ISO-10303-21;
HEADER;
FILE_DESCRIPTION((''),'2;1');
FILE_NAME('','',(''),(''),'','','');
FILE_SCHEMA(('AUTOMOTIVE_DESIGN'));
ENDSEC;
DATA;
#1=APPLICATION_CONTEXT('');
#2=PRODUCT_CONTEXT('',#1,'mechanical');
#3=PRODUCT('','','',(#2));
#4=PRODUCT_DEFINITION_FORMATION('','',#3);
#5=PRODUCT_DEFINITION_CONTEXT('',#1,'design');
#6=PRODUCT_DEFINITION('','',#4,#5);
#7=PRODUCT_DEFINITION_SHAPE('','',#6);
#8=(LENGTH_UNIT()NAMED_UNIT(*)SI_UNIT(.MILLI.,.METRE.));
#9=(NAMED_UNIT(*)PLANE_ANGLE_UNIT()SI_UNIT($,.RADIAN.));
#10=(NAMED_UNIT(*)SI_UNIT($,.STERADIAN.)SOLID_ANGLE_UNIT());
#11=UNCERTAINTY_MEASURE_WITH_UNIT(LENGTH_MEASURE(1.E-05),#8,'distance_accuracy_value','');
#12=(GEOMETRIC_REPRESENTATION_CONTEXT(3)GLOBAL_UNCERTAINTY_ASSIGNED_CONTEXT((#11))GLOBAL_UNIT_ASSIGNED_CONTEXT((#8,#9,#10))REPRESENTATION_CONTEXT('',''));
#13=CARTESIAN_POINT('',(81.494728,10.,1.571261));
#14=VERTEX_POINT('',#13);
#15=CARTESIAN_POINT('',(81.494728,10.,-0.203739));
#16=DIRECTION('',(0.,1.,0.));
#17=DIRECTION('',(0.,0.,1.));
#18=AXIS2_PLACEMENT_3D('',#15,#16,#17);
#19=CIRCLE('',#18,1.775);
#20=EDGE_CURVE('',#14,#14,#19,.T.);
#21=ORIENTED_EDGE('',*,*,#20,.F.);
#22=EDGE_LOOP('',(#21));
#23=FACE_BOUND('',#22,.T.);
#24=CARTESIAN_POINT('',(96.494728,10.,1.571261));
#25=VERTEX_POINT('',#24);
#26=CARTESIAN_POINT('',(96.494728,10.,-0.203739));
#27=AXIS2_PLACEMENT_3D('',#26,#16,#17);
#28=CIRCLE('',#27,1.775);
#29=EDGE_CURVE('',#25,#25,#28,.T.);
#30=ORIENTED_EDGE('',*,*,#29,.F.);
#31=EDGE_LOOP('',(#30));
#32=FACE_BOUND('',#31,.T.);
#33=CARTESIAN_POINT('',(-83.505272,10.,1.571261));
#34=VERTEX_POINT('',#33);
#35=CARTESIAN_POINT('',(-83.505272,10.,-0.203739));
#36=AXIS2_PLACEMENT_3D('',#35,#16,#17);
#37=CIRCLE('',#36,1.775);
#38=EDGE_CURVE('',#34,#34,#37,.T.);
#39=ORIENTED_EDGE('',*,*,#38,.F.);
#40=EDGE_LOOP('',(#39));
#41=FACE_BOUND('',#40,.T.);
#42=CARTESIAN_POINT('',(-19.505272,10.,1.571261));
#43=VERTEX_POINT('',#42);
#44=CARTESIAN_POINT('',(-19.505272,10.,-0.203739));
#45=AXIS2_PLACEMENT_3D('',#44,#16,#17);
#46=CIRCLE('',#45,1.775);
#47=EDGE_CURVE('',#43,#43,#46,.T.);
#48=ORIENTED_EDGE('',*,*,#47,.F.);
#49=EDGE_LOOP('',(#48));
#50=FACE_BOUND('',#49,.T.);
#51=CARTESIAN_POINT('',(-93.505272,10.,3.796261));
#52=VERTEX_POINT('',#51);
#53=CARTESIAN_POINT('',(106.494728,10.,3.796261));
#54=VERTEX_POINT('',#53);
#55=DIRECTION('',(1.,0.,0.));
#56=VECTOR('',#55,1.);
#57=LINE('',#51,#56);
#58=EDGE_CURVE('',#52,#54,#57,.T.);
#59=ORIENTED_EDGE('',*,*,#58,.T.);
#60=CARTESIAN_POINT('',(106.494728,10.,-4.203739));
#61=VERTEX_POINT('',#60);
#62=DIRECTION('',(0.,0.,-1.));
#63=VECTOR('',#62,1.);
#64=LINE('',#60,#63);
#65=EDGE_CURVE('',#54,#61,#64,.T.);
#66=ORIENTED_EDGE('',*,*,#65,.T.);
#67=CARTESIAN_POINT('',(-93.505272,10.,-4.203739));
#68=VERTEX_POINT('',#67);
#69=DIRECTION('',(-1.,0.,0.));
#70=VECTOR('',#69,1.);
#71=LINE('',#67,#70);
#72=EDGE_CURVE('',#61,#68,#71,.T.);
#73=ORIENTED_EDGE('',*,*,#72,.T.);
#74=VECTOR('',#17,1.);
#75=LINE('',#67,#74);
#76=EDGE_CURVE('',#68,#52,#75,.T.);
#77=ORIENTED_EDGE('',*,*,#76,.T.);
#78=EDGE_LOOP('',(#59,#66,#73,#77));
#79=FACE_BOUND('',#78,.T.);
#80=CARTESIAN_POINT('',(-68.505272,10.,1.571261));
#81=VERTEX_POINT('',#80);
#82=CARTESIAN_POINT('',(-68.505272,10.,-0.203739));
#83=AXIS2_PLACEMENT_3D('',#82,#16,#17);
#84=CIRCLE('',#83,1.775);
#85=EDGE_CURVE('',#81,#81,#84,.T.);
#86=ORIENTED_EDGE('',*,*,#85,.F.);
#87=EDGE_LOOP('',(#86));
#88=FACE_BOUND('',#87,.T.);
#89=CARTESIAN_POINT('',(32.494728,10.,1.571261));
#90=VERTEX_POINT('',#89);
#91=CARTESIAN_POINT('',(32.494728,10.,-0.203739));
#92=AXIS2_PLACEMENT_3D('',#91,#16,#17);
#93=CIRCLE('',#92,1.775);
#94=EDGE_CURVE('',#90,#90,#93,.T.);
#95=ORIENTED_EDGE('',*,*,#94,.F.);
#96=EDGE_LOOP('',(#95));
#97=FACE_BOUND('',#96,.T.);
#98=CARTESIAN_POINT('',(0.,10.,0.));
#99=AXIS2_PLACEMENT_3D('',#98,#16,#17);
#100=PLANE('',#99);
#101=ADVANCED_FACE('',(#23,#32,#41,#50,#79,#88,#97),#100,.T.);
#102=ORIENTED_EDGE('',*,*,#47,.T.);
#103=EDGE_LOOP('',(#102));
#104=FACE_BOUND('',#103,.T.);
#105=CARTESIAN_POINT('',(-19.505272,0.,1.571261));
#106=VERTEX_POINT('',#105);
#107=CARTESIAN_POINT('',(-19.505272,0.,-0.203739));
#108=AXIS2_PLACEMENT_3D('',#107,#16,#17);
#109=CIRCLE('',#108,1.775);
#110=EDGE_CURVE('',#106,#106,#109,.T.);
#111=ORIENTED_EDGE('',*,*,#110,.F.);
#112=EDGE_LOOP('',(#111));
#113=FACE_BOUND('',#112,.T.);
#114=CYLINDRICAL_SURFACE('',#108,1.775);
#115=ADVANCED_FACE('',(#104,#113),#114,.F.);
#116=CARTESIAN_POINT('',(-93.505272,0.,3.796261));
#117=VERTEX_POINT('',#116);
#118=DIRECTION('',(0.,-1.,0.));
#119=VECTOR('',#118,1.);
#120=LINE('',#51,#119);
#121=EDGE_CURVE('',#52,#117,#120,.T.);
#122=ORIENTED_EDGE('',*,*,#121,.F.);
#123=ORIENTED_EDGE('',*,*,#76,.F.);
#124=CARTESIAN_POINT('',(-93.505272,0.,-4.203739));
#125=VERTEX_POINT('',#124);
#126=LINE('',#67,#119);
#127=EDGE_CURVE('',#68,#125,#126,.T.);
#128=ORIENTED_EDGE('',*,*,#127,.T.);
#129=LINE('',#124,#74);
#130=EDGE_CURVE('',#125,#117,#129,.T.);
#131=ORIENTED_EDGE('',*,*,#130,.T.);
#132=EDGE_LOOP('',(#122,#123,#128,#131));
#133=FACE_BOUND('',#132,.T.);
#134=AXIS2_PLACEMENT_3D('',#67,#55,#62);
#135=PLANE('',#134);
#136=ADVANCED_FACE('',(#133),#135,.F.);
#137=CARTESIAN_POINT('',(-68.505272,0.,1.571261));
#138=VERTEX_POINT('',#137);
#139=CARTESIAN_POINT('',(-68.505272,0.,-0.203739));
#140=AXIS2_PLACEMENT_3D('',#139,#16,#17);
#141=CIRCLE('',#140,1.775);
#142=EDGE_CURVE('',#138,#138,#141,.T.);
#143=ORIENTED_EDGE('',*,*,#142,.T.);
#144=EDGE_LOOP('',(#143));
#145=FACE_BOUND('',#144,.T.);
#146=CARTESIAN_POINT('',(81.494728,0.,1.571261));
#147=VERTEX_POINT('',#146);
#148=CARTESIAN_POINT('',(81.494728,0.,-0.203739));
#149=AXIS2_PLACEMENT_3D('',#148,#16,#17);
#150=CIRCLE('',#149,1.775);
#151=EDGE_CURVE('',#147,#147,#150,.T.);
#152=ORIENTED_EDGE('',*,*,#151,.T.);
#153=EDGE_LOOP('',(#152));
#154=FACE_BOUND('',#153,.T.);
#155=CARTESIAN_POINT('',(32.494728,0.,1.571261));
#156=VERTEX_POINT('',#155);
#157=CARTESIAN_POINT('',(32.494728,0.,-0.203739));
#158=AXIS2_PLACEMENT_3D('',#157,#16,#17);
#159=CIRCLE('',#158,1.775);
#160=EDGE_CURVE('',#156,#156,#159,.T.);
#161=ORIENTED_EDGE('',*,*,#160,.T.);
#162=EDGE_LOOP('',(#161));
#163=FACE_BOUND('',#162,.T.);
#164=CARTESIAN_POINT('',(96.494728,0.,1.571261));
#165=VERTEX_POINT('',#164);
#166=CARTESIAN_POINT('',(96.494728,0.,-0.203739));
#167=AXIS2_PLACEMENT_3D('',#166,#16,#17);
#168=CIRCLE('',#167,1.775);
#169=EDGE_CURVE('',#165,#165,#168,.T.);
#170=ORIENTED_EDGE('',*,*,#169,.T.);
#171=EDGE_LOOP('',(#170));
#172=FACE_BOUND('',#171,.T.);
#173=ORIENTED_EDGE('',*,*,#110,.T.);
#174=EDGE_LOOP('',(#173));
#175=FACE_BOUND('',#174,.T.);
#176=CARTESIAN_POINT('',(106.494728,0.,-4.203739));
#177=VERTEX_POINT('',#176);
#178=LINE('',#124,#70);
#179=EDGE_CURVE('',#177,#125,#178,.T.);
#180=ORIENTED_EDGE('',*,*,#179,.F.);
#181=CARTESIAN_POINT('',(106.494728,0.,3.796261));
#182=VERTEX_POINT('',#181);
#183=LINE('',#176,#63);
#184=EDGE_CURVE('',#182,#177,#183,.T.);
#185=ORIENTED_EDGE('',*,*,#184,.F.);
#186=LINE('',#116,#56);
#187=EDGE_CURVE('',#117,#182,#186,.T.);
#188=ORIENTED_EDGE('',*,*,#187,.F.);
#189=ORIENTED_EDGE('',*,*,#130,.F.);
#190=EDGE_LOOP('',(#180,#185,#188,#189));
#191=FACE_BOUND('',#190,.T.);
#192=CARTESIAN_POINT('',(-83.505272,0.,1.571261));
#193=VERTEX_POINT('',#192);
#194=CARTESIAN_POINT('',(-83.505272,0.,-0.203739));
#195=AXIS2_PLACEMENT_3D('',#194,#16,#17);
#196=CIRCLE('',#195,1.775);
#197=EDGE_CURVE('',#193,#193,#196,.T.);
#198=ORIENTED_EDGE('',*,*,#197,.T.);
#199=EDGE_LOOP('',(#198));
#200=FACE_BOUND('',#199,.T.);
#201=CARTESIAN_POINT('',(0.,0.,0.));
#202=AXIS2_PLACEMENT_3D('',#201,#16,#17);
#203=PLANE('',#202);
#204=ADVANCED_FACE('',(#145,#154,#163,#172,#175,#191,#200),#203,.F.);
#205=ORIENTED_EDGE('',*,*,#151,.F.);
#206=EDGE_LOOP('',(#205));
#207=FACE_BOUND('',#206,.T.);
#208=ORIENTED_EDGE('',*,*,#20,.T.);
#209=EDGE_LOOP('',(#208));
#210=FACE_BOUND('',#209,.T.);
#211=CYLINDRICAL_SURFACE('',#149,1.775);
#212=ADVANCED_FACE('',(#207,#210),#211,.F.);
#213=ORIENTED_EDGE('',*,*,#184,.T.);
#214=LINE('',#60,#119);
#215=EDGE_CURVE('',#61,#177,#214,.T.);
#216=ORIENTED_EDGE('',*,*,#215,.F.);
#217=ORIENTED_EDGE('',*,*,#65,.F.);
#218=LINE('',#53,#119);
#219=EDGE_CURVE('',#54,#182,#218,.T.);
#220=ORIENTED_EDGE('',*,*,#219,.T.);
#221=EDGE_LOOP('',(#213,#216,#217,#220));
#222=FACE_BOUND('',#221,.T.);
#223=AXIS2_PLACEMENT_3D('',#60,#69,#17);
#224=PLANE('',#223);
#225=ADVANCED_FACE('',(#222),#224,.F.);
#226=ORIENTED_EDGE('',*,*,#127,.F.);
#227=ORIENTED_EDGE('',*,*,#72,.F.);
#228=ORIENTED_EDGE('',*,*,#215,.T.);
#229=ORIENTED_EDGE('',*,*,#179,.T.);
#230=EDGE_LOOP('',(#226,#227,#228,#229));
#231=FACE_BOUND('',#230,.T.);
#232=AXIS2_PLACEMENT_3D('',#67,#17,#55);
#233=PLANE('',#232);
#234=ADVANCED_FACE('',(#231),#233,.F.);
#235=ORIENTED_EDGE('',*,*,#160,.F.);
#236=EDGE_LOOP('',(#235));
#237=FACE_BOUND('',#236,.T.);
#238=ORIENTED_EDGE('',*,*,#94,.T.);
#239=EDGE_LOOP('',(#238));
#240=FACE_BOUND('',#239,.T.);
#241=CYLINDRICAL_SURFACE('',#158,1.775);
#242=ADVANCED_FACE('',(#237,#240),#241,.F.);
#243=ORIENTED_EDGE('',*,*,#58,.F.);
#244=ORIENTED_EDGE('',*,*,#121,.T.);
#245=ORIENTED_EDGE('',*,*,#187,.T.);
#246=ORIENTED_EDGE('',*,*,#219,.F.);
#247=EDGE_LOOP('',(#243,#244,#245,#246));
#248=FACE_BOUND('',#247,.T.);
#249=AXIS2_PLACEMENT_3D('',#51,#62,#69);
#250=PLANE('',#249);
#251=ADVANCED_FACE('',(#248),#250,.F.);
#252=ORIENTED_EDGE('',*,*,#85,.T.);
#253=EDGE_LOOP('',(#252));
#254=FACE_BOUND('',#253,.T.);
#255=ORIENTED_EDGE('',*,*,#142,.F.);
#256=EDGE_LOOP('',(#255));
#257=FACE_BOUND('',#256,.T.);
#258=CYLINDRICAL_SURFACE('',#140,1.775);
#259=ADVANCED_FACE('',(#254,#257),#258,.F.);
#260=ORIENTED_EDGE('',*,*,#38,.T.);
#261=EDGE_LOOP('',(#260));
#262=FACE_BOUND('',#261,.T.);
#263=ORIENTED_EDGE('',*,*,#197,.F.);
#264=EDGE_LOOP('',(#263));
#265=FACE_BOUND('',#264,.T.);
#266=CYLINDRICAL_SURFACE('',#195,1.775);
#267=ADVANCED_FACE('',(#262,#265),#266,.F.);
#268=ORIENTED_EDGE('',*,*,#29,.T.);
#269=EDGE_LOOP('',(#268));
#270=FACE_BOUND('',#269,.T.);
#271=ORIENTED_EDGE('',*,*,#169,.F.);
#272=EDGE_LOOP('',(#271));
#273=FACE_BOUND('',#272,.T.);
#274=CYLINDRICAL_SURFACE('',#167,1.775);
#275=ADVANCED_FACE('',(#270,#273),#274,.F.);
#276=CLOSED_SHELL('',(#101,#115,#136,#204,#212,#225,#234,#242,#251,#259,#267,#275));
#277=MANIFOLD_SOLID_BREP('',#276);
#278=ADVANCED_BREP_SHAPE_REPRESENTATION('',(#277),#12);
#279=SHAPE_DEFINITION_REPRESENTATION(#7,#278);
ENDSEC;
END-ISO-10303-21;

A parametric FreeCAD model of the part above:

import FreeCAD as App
import Part
import Sketcher
from FreeCAD import Vector
Q = App.Units.Quantity

doc = App.newDocument("Part")
params = doc.addObject("Spreadsheet::Sheet", "Params")
for row, (alias, value) in enumerate([
    ("sketch1_width", "200 mm"),
    ("sketch1_height", "8 mm"),
    ("pad1_length", "10 mm"),
    ("sketch2_diameter", "3.55 mm"),
    ("sketch3_diameter", "3.55 mm"),
], start=1):
    params.set(f"A{row}", alias)
    params.set(f"B{row}", "=" + value)
    params.setAlias(f"B{row}", alias)

body = doc.addObject("PartDesign::Body", "Body")

# Sketch on XZ plane
sketch1 = body.newObject("Sketcher::SketchObject", "Sketch")
sketch1.AttachmentSupport = (doc.getObject("XZ_Plane"), [""])
sketch1.MapMode = "FlatFace"
sketch1.addGeometry([
    Part.LineSegment(Vector(-94, -4, 0), Vector(-94, 4, 0)),
    Part.LineSegment(Vector(-94, 4, 0), Vector(106, 4, 0)),
    Part.LineSegment(Vector(106, 4, 0), Vector(106, -4, 0)),
    Part.LineSegment(Vector(106, -4, 0), Vector(-94, -4, 0)),
], False)
sketch1.addConstraint([
    Sketcher.Constraint("Coincident", 0, 2, 1, 1),
    Sketcher.Constraint("Coincident", 1, 2, 2, 1),
    Sketcher.Constraint("Coincident", 2, 2, 3, 1),
    Sketcher.Constraint("Coincident", 3, 2, 0, 1),
    Sketcher.Constraint("Vertical", 0),
    Sketcher.Constraint("Horizontal", 1),
    Sketcher.Constraint("Vertical", 2),
    Sketcher.Constraint("Horizontal", 3),
    Sketcher.Constraint("DistanceX", 1, 1, 1, 2, Q("200 mm")),
    Sketcher.Constraint("DistanceY", 0, 1, 0, 2, Q("8 mm")),
    Sketcher.Constraint("DistanceY", -1, 1, 0, 2, Q("3.796261 mm")),
    Sketcher.Constraint("DistanceX", 0, 2, -1, 1, Q("93.505272 mm")),
])
sketch1.setExpression("Constraints[8]", "Params.sketch1_width")
sketch1.setExpression("Constraints[9]", "Params.sketch1_height")
pad1 = body.newObject("PartDesign::Pad", "Pad")
pad1.Profile = sketch1
pad1.setExpression("Length", "Params.pad1_length")
pad1.Reversed = True

# Sketch on XZ plane
sketch2 = body.newObject("Sketcher::SketchObject", "Sketch001")
sketch2.AttachmentSupport = (doc.getObject("XZ_Plane"), [""])
sketch2.MapMode = "FlatFace"
sketch2.AttachmentOffset = App.Placement(Vector(0, 0, -10), App.Rotation())
sketch2.addGeometry([
    Part.Circle(Vector(-19.5, -0.2, 0), Vector(0, 0, 1), 1.8),
    Part.Circle(Vector(32.5, -0.2, 0), Vector(0, 0, 1), 1.8),
], False)
sketch2.addConstraint([
    Sketcher.Constraint("Equal", 0, 1),
    Sketcher.Constraint("Horizontal", 0, 3, 1, 3),
    Sketcher.Constraint("Diameter", 0, Q("3.55 mm")),
    Sketcher.Constraint("DistanceX", 0, 3, 1, 3, Q("52 mm")),
    Sketcher.Constraint("DistanceY", 0, 3, -1, 1, Q("0.203739 mm")),
    Sketcher.Constraint("DistanceX", 0, 3, -1, 1, Q("19.505272 mm")),
])
sketch2.setExpression("Constraints[2]", "Params.sketch2_diameter")
pocket1 = body.newObject("PartDesign::Pocket", "Pocket")
pocket1.Profile = sketch2
pocket1.Type = "ThroughAll"
pocket1.Reversed = True

# Sketch on XZ plane
sketch3 = body.newObject("Sketcher::SketchObject", "Sketch002")
sketch3.AttachmentSupport = (doc.getObject("XZ_Plane"), [""])
sketch3.MapMode = "FlatFace"
sketch3.AttachmentOffset = App.Placement(Vector(0, 0, -10), App.Rotation())
sketch3.addGeometry([
    Part.Circle(Vector(-83.5, -0.2, 0), Vector(0, 0, 1), 1.8),
    Part.Circle(Vector(-68.5, -0.2, 0), Vector(0, 0, 1), 1.8),
    Part.Circle(Vector(81.5, -0.2, 0), Vector(0, 0, 1), 1.8),
    Part.Circle(Vector(96.5, -0.2, 0), Vector(0, 0, 1), 1.8),
], False)
sketch3.addConstraint([
    Sketcher.Constraint("Equal", 0, 1),
    Sketcher.Constraint("Equal", 1, 2),
    Sketcher.Constraint("Equal", 2, 3),
    Sketcher.Constraint("Horizontal", 0, 3, 1, 3),
    Sketcher.Constraint("Horizontal", 1, 3, 2, 3),
    Sketcher.Constraint("Horizontal", 2, 3, 3, 3),
    Sketcher.Constraint("Diameter", 0, Q("3.55 mm")),
    Sketcher.Constraint("DistanceX", 0, 3, 1, 3, Q("15 mm")),
    Sketcher.Constraint("DistanceX", 1, 3, 2, 3, Q("150 mm")),
    Sketcher.Constraint("DistanceX", 2, 3, 3, 3, Q("15 mm")),
    Sketcher.Constraint("DistanceY", 0, 3, -1, 1, Q("0.203739 mm")),
    Sketcher.Constraint("DistanceX", 0, 3, -1, 1, Q("83.505272 mm")),
])
sketch3.setExpression("Constraints[6]", "Params.sketch3_diameter")
pocket2 = body.newObject("PartDesign::Pocket", "Pocket001")
pocket2.Profile = sketch3
pocket2.Type = "ThroughAll"
pocket2.Reversed = True

doc.recompute()
